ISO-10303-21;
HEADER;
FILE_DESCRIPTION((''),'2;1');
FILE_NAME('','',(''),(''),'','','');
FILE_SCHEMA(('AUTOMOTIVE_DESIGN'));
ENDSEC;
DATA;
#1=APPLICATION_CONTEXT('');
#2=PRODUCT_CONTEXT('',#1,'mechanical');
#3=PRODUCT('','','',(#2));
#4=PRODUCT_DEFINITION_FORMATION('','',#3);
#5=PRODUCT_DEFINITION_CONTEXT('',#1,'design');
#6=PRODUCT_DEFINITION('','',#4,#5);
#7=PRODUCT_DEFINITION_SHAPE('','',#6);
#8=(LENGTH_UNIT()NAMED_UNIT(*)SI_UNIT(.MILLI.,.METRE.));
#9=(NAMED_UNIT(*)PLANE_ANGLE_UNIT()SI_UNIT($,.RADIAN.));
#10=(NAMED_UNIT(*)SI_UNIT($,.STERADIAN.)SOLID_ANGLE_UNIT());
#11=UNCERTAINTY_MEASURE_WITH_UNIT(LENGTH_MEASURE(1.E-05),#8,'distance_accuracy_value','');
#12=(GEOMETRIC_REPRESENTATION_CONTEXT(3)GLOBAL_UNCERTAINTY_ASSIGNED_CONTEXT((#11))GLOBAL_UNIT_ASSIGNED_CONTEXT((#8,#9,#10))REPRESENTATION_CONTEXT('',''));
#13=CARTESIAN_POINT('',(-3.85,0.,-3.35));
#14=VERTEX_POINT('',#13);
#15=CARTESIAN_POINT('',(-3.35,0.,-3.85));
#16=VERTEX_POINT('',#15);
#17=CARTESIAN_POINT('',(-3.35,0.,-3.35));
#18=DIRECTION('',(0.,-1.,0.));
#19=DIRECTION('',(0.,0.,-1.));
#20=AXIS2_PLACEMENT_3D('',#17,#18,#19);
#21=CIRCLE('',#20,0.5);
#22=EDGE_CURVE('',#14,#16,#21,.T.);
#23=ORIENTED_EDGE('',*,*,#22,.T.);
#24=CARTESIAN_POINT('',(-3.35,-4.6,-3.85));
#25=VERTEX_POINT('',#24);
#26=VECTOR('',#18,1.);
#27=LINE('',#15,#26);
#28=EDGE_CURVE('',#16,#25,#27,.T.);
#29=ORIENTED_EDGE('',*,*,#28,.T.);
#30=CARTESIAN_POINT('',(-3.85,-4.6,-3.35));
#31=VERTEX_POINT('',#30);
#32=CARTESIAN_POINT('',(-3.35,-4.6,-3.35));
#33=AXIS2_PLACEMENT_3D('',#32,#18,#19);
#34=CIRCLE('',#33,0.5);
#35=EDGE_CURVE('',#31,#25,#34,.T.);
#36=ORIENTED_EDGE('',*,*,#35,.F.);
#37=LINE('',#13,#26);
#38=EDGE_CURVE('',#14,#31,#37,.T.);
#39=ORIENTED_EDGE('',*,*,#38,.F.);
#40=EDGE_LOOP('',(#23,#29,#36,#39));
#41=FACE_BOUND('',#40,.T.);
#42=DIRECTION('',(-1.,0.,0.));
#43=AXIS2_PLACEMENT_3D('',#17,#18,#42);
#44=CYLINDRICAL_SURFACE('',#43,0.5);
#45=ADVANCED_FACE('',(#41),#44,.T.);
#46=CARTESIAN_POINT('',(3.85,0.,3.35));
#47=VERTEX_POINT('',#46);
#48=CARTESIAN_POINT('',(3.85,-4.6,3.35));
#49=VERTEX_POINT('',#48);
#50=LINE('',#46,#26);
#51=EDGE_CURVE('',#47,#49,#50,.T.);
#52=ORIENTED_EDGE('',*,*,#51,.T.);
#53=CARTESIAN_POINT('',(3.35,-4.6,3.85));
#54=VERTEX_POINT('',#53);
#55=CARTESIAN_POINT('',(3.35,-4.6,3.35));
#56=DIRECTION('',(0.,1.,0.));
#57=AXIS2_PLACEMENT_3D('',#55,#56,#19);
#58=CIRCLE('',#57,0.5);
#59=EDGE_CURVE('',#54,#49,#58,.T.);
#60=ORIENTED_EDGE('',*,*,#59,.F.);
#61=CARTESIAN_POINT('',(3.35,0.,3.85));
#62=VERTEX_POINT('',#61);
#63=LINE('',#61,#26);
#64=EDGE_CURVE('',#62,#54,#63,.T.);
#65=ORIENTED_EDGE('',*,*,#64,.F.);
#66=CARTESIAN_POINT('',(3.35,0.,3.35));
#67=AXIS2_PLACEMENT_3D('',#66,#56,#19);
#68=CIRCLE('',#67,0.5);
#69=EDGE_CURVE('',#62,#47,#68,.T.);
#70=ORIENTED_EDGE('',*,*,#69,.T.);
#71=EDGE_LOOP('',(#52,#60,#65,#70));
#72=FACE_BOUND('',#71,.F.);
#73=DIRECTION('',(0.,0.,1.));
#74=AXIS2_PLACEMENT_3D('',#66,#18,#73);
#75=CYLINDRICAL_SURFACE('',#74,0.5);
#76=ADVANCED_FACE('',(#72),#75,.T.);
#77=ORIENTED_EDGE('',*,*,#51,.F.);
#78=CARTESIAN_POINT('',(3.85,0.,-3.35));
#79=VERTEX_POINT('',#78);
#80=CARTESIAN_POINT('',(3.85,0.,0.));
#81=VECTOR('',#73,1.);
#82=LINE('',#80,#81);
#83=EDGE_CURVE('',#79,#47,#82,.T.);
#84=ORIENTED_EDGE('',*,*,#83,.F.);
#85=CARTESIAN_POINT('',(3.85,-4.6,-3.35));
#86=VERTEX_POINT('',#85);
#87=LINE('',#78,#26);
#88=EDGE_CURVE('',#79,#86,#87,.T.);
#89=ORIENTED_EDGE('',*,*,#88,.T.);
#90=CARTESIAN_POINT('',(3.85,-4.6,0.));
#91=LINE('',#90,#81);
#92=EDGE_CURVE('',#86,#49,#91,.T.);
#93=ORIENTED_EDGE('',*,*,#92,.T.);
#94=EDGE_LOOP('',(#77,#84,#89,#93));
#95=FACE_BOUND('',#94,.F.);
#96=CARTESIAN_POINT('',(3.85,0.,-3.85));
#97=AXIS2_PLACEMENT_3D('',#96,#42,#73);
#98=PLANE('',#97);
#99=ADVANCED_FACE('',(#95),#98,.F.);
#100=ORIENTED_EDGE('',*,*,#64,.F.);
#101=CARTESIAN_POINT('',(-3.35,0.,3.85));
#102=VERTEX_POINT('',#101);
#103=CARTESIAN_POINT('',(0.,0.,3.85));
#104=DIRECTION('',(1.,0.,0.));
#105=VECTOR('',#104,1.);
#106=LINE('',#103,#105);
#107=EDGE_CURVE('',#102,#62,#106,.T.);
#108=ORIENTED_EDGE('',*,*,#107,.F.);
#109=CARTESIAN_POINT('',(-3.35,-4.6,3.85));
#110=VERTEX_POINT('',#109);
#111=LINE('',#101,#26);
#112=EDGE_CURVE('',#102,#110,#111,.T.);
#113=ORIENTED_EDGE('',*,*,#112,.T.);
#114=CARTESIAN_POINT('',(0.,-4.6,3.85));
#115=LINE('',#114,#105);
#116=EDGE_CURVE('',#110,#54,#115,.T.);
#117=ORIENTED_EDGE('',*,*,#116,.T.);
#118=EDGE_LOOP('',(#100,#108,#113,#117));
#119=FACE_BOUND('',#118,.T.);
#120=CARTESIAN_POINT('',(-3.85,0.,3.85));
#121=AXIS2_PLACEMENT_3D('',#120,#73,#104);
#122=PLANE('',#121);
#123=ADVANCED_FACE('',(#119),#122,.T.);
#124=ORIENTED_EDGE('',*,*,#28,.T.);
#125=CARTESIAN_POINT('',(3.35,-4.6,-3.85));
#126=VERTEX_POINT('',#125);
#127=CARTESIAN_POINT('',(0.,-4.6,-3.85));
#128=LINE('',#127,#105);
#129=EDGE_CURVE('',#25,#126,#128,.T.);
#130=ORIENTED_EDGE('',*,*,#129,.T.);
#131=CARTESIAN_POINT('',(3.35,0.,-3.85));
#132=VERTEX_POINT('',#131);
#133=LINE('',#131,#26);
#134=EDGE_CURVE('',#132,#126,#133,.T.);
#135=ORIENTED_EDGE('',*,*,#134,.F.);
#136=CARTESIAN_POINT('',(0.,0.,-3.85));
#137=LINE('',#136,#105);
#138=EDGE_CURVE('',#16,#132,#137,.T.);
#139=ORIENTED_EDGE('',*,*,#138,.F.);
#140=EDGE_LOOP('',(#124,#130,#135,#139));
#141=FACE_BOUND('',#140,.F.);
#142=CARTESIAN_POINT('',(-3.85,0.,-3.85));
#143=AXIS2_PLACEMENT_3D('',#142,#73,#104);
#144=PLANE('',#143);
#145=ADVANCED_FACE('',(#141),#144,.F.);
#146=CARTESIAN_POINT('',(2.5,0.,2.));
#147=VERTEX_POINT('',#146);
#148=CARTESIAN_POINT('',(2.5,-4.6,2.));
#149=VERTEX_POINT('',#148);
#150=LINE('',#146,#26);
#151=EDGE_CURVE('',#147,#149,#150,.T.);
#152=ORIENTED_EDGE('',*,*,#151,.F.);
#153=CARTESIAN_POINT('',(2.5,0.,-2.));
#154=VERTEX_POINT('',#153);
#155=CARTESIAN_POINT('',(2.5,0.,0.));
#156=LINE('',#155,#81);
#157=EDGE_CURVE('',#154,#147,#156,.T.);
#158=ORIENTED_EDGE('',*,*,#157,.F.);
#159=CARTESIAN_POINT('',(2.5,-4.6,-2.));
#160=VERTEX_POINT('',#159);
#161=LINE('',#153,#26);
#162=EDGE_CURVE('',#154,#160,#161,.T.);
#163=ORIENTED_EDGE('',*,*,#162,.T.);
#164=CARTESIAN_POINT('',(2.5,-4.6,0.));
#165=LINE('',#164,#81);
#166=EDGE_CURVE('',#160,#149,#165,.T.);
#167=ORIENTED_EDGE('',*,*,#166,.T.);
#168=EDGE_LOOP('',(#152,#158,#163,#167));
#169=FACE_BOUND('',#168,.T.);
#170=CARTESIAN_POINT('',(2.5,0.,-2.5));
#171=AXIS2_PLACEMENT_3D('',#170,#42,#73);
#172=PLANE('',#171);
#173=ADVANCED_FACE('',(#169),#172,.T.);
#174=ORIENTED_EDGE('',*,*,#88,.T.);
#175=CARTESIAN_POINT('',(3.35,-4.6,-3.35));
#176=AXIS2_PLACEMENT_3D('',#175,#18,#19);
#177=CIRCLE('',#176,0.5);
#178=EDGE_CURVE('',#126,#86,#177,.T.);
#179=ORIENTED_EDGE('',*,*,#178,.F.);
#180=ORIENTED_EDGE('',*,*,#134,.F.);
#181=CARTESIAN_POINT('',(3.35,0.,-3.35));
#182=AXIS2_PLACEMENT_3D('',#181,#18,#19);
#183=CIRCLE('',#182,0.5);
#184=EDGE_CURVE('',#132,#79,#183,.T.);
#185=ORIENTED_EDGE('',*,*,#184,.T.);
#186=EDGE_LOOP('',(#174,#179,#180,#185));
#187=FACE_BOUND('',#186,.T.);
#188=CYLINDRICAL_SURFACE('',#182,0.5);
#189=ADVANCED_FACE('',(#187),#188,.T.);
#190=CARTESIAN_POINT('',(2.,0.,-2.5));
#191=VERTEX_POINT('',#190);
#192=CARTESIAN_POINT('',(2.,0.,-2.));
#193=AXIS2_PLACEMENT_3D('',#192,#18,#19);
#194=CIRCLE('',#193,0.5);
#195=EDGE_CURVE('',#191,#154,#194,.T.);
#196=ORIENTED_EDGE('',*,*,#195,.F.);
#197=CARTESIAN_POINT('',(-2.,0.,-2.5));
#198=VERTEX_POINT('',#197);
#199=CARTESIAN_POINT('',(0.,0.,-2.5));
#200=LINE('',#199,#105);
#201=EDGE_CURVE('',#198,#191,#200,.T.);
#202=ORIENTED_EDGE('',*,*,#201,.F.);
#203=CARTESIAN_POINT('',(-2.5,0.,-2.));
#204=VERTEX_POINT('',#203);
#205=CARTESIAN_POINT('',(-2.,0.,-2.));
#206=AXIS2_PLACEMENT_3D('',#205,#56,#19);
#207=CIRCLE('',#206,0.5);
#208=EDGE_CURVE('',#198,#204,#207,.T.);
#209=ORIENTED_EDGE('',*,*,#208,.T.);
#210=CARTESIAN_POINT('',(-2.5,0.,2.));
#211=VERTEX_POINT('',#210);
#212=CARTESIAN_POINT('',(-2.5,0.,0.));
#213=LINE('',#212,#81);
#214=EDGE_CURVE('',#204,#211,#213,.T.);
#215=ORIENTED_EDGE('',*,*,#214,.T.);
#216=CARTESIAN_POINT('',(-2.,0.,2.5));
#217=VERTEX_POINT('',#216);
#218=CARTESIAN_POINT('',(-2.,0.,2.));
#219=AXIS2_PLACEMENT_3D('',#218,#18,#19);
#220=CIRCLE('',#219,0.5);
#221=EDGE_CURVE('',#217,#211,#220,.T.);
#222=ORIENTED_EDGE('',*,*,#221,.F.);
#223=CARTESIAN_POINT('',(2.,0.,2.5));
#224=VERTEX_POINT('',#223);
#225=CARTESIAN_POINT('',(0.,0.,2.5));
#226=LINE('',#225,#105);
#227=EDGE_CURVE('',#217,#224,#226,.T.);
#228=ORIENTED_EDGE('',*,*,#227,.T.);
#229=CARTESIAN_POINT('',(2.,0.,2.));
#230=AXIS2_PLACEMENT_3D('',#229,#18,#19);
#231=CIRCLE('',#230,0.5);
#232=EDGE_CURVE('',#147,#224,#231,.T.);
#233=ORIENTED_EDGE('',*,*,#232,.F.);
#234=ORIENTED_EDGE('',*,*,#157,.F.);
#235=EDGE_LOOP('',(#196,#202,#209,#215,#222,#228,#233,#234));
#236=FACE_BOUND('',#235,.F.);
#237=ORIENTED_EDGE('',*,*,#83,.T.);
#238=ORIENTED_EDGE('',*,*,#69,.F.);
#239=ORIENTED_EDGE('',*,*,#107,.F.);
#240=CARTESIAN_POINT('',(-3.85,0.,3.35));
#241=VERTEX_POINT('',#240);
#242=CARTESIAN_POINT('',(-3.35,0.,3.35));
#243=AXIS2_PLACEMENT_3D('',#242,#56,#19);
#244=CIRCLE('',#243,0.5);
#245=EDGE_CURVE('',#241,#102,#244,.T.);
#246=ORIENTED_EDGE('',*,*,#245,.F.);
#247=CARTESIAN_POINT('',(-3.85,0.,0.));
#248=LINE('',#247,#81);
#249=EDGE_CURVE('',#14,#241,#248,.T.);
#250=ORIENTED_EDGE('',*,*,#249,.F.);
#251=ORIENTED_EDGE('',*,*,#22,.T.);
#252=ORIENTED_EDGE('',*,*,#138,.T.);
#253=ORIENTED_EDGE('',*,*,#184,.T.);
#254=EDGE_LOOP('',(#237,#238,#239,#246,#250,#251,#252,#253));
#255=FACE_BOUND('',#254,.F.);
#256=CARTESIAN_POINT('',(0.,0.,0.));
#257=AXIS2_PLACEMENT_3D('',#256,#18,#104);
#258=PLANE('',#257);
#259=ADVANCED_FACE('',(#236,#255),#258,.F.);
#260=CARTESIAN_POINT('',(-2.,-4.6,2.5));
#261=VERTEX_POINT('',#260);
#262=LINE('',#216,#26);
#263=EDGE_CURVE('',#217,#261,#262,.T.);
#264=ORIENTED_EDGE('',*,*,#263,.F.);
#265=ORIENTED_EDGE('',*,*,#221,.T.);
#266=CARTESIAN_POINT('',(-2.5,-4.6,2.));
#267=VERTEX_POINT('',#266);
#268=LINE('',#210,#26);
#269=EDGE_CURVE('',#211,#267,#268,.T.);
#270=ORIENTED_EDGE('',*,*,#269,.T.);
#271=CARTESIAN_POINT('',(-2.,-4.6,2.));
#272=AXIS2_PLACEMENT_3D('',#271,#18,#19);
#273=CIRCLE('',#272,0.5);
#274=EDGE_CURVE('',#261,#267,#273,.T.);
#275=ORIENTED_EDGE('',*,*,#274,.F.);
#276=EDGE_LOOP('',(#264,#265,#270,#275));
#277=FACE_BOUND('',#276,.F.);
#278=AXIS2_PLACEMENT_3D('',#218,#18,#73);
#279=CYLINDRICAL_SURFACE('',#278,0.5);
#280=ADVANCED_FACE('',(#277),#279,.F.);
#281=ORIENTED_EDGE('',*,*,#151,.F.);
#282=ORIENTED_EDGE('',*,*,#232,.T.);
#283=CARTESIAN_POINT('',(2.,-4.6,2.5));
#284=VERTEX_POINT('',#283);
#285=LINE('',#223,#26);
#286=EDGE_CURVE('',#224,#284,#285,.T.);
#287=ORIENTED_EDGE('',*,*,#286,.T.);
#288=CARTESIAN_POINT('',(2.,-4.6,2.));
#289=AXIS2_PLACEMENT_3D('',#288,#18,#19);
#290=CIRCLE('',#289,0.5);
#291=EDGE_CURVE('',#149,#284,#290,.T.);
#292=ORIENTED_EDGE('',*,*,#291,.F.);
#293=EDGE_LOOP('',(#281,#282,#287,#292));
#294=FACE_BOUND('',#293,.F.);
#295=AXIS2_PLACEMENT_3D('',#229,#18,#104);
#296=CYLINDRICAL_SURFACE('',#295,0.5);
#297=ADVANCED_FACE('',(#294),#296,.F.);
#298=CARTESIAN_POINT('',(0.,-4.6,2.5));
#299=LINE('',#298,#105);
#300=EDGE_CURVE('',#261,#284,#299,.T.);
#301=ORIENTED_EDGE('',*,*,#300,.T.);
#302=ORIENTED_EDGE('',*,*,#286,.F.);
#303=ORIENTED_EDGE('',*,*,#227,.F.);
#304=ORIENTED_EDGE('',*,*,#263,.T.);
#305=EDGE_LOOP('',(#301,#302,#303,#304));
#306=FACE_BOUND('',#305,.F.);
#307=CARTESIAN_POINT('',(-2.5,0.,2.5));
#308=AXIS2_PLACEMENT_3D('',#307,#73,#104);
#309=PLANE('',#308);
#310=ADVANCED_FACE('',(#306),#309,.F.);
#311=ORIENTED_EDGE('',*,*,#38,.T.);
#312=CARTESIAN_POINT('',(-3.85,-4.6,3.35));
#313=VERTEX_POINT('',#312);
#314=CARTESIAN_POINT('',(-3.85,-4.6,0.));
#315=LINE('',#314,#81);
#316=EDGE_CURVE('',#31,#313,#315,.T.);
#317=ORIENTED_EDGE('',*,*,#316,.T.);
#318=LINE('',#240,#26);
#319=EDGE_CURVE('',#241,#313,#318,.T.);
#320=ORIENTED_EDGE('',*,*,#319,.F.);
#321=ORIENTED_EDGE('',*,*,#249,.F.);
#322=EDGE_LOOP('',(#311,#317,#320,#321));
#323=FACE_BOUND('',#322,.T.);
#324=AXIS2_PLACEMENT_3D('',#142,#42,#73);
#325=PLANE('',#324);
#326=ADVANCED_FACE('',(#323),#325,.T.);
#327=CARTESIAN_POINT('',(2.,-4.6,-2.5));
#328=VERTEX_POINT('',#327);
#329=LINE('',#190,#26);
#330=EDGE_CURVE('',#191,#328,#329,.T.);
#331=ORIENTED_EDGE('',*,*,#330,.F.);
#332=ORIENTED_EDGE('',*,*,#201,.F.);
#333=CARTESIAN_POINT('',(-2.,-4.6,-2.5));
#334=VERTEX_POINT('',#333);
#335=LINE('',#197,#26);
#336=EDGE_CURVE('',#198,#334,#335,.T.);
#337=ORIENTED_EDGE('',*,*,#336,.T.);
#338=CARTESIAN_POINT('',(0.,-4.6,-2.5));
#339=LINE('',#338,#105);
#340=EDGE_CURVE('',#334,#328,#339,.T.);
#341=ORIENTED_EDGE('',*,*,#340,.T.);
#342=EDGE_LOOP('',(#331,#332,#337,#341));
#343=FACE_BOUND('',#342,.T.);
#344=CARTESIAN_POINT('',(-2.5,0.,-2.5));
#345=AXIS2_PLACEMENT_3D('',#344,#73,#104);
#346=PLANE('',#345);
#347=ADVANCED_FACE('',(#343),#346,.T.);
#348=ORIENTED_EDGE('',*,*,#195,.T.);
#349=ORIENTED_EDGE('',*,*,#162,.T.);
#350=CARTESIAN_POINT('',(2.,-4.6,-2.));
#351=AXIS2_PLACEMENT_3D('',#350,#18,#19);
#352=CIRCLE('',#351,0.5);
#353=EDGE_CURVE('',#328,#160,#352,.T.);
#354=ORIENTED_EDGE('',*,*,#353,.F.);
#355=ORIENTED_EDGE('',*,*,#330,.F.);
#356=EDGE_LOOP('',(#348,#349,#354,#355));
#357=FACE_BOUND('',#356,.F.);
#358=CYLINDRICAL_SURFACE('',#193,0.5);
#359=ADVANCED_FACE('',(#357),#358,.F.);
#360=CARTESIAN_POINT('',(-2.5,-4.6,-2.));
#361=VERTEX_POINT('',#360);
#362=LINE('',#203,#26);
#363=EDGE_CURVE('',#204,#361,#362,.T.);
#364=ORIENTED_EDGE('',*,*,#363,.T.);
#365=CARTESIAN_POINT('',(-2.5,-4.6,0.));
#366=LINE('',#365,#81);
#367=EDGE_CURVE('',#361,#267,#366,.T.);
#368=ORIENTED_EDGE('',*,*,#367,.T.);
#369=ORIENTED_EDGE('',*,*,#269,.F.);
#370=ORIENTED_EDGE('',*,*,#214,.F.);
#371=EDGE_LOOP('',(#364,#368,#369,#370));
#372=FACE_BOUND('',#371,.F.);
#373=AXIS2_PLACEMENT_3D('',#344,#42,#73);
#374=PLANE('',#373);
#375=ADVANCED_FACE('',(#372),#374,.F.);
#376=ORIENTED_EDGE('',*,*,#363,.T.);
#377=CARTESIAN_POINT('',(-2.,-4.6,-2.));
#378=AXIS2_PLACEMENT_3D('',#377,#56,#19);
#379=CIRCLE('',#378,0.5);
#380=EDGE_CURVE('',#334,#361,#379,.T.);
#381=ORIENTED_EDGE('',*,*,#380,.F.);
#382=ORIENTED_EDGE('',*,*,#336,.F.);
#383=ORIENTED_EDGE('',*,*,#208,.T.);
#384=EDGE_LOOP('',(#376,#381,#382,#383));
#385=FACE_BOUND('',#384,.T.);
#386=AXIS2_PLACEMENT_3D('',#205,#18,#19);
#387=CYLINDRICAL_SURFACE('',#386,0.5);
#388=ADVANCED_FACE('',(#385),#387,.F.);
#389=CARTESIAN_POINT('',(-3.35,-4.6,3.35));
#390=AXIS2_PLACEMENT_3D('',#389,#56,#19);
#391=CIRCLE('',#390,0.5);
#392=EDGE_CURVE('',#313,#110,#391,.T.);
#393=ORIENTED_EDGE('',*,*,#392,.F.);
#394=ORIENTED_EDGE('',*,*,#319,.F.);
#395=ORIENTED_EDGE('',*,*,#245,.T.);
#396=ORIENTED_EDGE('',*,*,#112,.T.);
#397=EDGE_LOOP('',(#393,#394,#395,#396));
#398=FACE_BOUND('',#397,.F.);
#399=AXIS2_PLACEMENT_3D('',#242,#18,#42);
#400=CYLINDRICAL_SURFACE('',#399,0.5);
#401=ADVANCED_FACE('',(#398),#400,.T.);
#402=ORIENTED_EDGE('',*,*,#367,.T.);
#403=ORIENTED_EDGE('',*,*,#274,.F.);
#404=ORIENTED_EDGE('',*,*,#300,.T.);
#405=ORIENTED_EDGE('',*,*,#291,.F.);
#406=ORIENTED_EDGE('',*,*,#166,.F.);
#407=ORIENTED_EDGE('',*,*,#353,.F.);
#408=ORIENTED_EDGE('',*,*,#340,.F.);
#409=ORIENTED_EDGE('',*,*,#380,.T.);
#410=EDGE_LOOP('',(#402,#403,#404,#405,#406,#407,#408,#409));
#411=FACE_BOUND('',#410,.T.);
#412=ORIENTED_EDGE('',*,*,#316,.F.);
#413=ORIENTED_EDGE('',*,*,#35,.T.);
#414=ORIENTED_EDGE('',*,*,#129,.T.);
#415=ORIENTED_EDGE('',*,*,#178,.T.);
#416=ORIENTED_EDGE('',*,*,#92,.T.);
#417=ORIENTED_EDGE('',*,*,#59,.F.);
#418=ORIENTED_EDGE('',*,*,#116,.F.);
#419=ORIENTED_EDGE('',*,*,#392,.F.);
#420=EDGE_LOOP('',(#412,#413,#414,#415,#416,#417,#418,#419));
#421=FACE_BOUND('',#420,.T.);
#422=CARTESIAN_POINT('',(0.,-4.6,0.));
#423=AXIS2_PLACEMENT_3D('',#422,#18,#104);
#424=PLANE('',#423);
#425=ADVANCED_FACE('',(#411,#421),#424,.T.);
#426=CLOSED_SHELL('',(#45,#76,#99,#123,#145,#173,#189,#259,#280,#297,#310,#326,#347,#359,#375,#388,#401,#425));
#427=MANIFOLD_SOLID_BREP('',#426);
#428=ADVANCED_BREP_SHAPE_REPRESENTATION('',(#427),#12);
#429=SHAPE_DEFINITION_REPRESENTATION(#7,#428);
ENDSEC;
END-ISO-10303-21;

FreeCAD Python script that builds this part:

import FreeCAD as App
import Part
import Sketcher
from FreeCAD import Vector
Q = App.Units.Quantity


def edges_at(feature, points):
    """Names of the edges that pass closest to the given points."""
    edges = feature.Shape.Edges
    near = lambda p: min(range(len(edges)), key=lambda i: edges[i].distToShape(Part.Vertex(*p))[0])
    return sorted({f"Edge{near(p) + 1}" for p in points})


def add_polygon(sketch, points):
    """Adds a closed chain of lines whose ends are joined by coincident constraints."""
    first, n = sketch.GeometryCount, len(points)
    for a, b in zip(points, points[1:] + points[:1]):
        sketch.addGeometry(Part.LineSegment(App.Vector(*a, 0), App.Vector(*b, 0)), False)
    for i in range(n):
        sketch.addConstraint(Sketcher.Constraint("Coincident", first + i, 2, first + (i + 1) % n, 1))

doc = App.newDocument("Part")
body = doc.addObject("PartDesign::Body", "Body")

sketch1 = body.newObject("Sketcher::SketchObject", "Sketch")
sketch1.AttachmentSupport = (doc.getObject("XZ_Plane"), [""])
sketch1.MapMode = "FlatFace"
add_polygon(sketch1, [(-3.85, 3.85), (-3.85, -3.85), (3.85, -3.85), (3.85, 3.85)])
add_polygon(sketch1, [(2.5, -2.5), (-2.5, -2.5), (-2.5, 2.5), (2.5, 2.5)])
sketch1.addConstraint(Sketcher.Constraint("Vertical", 0))
sketch1.addConstraint(Sketcher.Constraint("Horizontal", 1))
sketch1.addConstraint(Sketcher.Constraint("Vertical", 2))
sketch1.addConstraint(Sketcher.Constraint("Horizontal", 3))
sketch1.addConstraint(Sketcher.Constraint("Horizontal", 4))
sketch1.addConstraint(Sketcher.Constraint("Vertical", 5))
sketch1.addConstraint(Sketcher.Constraint("Horizontal", 6))
sketch1.addConstraint(Sketcher.Constraint("Vertical", 7))
sketch1.addConstraint(Sketcher.Constraint("Symmetric", 0, 2, 2, 2, -1, 1))
sketch1.addConstraint(Sketcher.Constraint("Symmetric", 4, 2, 6, 2, -1, 1))
sketch1.addConstraint(Sketcher.Constraint("Equal", 3, 0))
sketch1.addConstraint(Sketcher.Constraint("Equal", 6, 5))
sketch1.addConstraint(Sketcher.Constraint("DistanceX", 4, 2, 4, 1, Q("5 mm")))
sketch1.addConstraint(Sketcher.Constraint("DistanceX", 1, 1, 1, 2, Q("7.7 mm")))
pad1 = body.newObject("PartDesign::Pad", "Pad")
pad1.Profile = sketch1
pad1.Length = 4.6
doc.recompute()

fillet = body.newObject("PartDesign::Fillet", "Fillet")
fillet.Base = (pad1, edges_at(pad1, [
    (2.5, -2.3, 2.5),
    (-2.5, -2.3, 2.5),
    (2.5, -2.3, -2.5),
    (-2.5, -2.3, -2.5),
]))
fillet.Radius = 0.5
doc.recompute()

fillet2 = body.newObject("PartDesign::Fillet", "Fillet001")
fillet2.Base = (fillet, edges_at(fillet, [
    (3.85, -2.3, 3.85),
    (3.85, -2.3, -3.85),
    (-3.85, -2.3, -3.85),
    (-3.85, -2.3, 3.85),
]))
fillet2.Radius = 0.5

doc.recompute()
